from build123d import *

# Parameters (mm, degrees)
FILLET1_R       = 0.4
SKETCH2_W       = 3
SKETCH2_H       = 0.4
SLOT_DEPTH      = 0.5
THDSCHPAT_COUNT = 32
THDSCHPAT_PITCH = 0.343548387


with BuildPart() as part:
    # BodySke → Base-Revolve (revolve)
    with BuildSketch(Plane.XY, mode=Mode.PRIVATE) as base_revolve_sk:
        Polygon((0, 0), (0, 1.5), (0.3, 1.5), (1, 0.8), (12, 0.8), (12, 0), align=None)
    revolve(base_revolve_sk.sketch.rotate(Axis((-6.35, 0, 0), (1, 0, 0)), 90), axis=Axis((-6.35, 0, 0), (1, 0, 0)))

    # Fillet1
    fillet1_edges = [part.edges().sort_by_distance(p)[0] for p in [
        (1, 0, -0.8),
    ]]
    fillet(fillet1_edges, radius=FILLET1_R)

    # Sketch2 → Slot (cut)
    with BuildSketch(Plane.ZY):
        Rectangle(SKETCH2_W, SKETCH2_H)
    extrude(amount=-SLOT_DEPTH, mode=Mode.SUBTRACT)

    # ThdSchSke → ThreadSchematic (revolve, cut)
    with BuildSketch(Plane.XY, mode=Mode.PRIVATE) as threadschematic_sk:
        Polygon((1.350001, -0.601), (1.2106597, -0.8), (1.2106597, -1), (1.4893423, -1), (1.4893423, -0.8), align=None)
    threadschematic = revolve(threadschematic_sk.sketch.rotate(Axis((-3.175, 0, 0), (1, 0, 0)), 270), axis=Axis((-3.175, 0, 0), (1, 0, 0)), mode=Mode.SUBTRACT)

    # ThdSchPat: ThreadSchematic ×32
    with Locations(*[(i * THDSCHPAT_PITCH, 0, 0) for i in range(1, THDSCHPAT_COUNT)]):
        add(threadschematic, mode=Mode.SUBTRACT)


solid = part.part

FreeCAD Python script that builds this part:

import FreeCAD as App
import Part
import Sketcher

V = App.Vector
Q = App.Units.Quantity


def edges_at(feature, points):
    """Names of the edges that pass closest to the given points."""
    edges = feature.Shape.Edges
    near = lambda p: min(range(len(edges)), key=lambda i: edges[i].distToShape(Part.Vertex(*p))[0])
    return sorted({f"Edge{near(p) + 1}" for p in points})

doc = App.newDocument("Part")
body = doc.addObject("PartDesign::Body", "Body")

# Sketch on XY plane
sketch1 = doc.addObject("Sketcher::SketchObject", "Sketch")
body.addObject(sketch1)
sketch1.AttachmentSupport = (doc.XY_Plane, [""])
sketch1.MapMode = "FlatFace"
sketch1.addGeometry(Part.LineSegment(V(0, 1.5, 0), V(0, 0, 0)), False)
sketch1.addGeometry(Part.LineSegment(V(0, 0, 0), V(12, 0, 0)), False)
sketch1.addGeometry(Part.LineSegment(V(12, 0, 0), V(12, 0.8, 0)), False)
sketch1.addGeometry(Part.LineSegment(V(12, 0.8, 0), V(1, 0.8, 0)), False)
sketch1.addGeometry(Part.LineSegment(V(1, 0.8, 0), V(0.3, 1.5, 0)), False)
sketch1.addGeometry(Part.LineSegment(V(0.3, 1.5, 0), V(0, 1.5, 0)), False)
sketch1.addConstraint(Sketcher.Constraint("Coincident", 0, 2, 1, 1))
sketch1.addConstraint(Sketcher.Constraint("Coincident", 1, 2, 2, 1))
sketch1.addConstraint(Sketcher.Constraint("Coincident", 2, 2, 3, 1))
sketch1.addConstraint(Sketcher.Constraint("Coincident", 3, 2, 4, 1))
sketch1.addConstraint(Sketcher.Constraint("Coincident", 4, 2, 5, 1))
sketch1.addConstraint(Sketcher.Constraint("Coincident", 5, 2, 0, 1))
sketch1.addConstraint(Sketcher.Constraint("Vertical", 0))
sketch1.addConstraint(Sketcher.Constraint("Horizontal", 1))
sketch1.addConstraint(Sketcher.Constraint("Vertical", 2))
sketch1.addConstraint(Sketcher.Constraint("Horizontal", 3))
sketch1.addConstraint(Sketcher.Constraint("Horizontal", 5))
sketch1.addConstraint(Sketcher.Constraint("Coincident", 0, 2, -1, 1))
sketch1.addConstraint(Sketcher.Constraint("DistanceX", 1, 1, 1, 2, 12.0))
sketch1.addConstraint(Sketcher.Constraint("DistanceX", 3, 2, 3, 1, 11.0))
sketch1.addConstraint(Sketcher.Constraint("Angle", 4, Q("135 deg")))
sketch1.addConstraint(Sketcher.Constraint("DistanceX", 5, 2, 5, 1, 0.3))
sketch1.addConstraint(Sketcher.Constraint("DistanceY", 0, 2, 0, 1, 1.5))
revolution = doc.addObject("PartDesign::Revolution", "Revolution")
body.addObject(revolution)
revolution.Profile = sketch1
revolution.ReferenceAxis = (sketch1, ["H_Axis"])
revolution.Angle = 360
doc.recompute()

fillet = doc.addObject("PartDesign::Fillet", "Fillet")
body.addObject(fillet)
fillet.Base = (revolution, edges_at(revolution, [(1, 0, -0.8)]))
fillet.Radius = 0.4

# Sketch on YZ plane
sketch2 = doc.addObject("Sketcher::SketchObject", "Sketch001")
body.addObject(sketch2)
sketch2.AttachmentSupport = (doc.YZ_Plane, [""])
sketch2.MapMode = "FlatFace"
sketch2.addGeometry(Part.LineSegment(V(0.2, -1.5, 0), V(-0.2, -1.5, 0)), False)
sketch2.addGeometry(Part.LineSegment(V(-0.2, -1.5, 0), V(-0.2, 1.5, 0)), False)
sketch2.addGeometry(Part.LineSegment(V(-0.2, 1.5, 0), V(0.2, 1.5, 0)), False)
sketch2.addGeometry(Part.LineSegment(V(0.2, 1.5, 0), V(0.2, -1.5, 0)), False)
sketch2.addConstraint(Sketcher.Constraint("Coincident", 0, 2, 1, 1))
sketch2.addConstraint(Sketcher.Constraint("Coincident", 1, 2, 2, 1))
sketch2.addConstraint(Sketcher.Constraint("Coincident", 2, 2, 3, 1))
sketch2.addConstraint(Sketcher.Constraint("Coincident", 3, 2, 0, 1))
sketch2.addConstraint(Sketcher.Constraint("Horizontal", 0))
sketch2.addConstraint(Sketcher.Constraint("Vertical", 1))
sketch2.addConstraint(Sketcher.Constraint("Horizontal", 2))
sketch2.addConstraint(Sketcher.Constraint("Vertical", 3))
sketch2.addConstraint(Sketcher.Constraint("Symmetric", 0, 2, 2, 2, -1, 1))
sketch2.addConstraint(Sketcher.Constraint("DistanceY", 1, 1, 1, 2, 3.0))
sketch2.addConstraint(Sketcher.Constraint("DistanceX", 0, 2, 0, 1, 0.4))
pocket1 = doc.addObject("PartDesign::Pocket", "Pocket")
body.addObject(pocket1)
pocket1.Profile = sketch2
pocket1.Length = 0.5
pocket1.Reversed = True

# Sketch on XY plane
sketch3 = doc.addObject("Sketcher::SketchObject", "Sketch002")
body.addObject(sketch3)
sketch3.AttachmentSupport = (doc.XY_Plane, [""])
sketch3.MapMode = "FlatFace"
sketch3.addGeometry(Part.LineSegment(V(1.35, -0.6, 0), V(1.21, -0.8, 0)), False)
sketch3.addGeometry(Part.LineSegment(V(1.21, -0.8, 0), V(1.21, -1, 0)), False)
sketch3.addGeometry(Part.LineSegment(V(1.21, -1, 0), V(1.49, -1, 0)), False)
sketch3.addGeometry(Part.LineSegment(V(1.49, -1, 0), V(1.49, -0.8, 0)), False)
sketch3.addGeometry(Part.LineSegment(V(1.49, -0.8, 0), V(1.35, -0.6, 0)), False)
sketch3.addConstraint(Sketcher.Constraint("Coincident", 0, 2, 1, 1))
sketch3.addConstraint(Sketcher.Constraint("Coincident", 1, 2, 2, 1))
sketch3.addConstraint(Sketcher.Constraint("Coincident", 2, 2, 3, 1))
sketch3.addConstraint(Sketcher.Constraint("Coincident", 3, 2, 4, 1))
sketch3.addConstraint(Sketcher.Constraint("Coincident", 4, 2, 0, 1))
sketch3.addConstraint(Sketcher.Constraint("Vertical", 1))
sketch3.addConstraint(Sketcher.Constraint("Horizontal", 2))
sketch3.addConstraint(Sketcher.Constraint("Vertical", 3))
sketch3.addConstraint(Sketcher.Constraint("Horizontal", 0, 2, 3, 2))
sketch3.addConstraint(Sketcher.Constraint("Equal", 0, 4))
sketch3.addConstraint(Sketcher.Constraint("Angle", 0, Q("-125 deg")))
sketch3.addConstraint(Sketcher.Constraint("DistanceY", 1, 2, 1, 1, 0.2))
sketch3.addConstraint(Sketcher.Constraint("DistanceY", 1, 2, -1, 1, 1.0))
sketch3.addConstraint(Sketcher.Constraint("DistanceX", -1, 1, 4, 2, 1.350001))
sketch3.addConstraint(Sketcher.Constraint("DistanceY", 4, 2, -1, 1, 0.601))
groove = doc.addObject("PartDesign::Groove", "Groove")
body.addObject(groove)
groove.Profile = sketch3
groove.ReferenceAxis = (sketch3, ["H_Axis"])
groove.Angle = 360
doc.recompute()

linearpattern = doc.addObject("PartDesign::LinearPattern", "LinearPattern")
body.addObject(linearpattern)
linearpattern.Originals = [groove]
linearpattern.Direction = (doc.X_Axis, [""])
linearpattern.Mode = "offset"
linearpattern.Offset = 0.343548
linearpattern.Occurrences = 32
body.Tip = linearpattern

doc.recompute()
